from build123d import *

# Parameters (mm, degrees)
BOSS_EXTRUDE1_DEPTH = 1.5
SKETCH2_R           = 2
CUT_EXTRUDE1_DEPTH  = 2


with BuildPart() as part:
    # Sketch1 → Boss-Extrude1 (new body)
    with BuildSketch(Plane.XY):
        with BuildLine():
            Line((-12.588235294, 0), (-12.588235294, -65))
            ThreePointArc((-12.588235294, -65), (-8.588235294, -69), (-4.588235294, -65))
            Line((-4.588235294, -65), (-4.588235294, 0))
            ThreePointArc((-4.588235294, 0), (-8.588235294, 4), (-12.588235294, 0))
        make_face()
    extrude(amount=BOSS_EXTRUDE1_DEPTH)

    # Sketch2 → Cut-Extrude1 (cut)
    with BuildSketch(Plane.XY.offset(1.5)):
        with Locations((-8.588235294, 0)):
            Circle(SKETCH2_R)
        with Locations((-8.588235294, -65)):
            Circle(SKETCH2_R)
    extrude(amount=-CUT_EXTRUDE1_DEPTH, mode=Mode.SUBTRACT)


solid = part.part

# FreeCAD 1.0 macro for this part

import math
import FreeCAD as App
import Part
import Sketcher
from FreeCAD import Vector
Q = App.Units.Quantity

doc = App.newDocument("Part")
params = doc.addObject("Spreadsheet::Sheet", "Params")
for row, (alias, value) in enumerate([
    ("sketch1_radius", "4 mm"),
    ("sketch1_height", "65 mm"),
    ("pad1_length", "1.5 mm"),
    ("sketch2_diameter", "4 mm"),
    ("pocket1_length", "2 mm"),
], start=1):
    params.set(f"A{row}", alias)
    params.set(f"B{row}", "=" + value)
    params.setAlias(f"B{row}", alias)

body = doc.addObject("PartDesign::Body", "Body")

# Sketch on XY plane
sketch1 = body.newObject("Sketcher::SketchObject", "Sketch")
sketch1.AttachmentSupport = (doc.getObject("XY_Plane"), [""])
sketch1.MapMode = "FlatFace"
sketch1.addGeometry(Part.LineSegment(Vector(-12.6, 0, 0), Vector(-12.6, -65, 0)), False)
sketch1.addGeometry(Part.ArcOfCircle(Part.Circle(Vector(-8.6, -65, 0), Vector(0, 0, 1), 4), math.radians(180), math.radians(360)), False)
sketch1.addGeometry(Part.LineSegment(Vector(-4.6, -65, 0), Vector(-4.6, 0, 0)), False)
sketch1.addGeometry(Part.ArcOfCircle(Part.Circle(Vector(-8.6, 0, 0), Vector(0, 0, 1), 4), math.radians(0), math.radians(180)), False)
sketch1.addConstraint(Sketcher.Constraint("Tangent", 0, 2, 1, 1))
sketch1.addConstraint(Sketcher.Constraint("Tangent", 1, 2, 2, 1))
sketch1.addConstraint(Sketcher.Constraint("Tangent", 2, 2, 3, 1))
sketch1.addConstraint(Sketcher.Constraint("Tangent", 3, 2, 0, 1))
sketch1.addConstraint(Sketcher.Constraint("Vertical", 0))
sketch1.addConstraint(Sketcher.Constraint("Vertical", 2))
sketch1.addConstraint(Sketcher.Constraint("PointOnObject", 3, 3, -1))
sketch1.addConstraint(Sketcher.Constraint("Radius", 1, Q("4 mm")))
sketch1.addConstraint(Sketcher.Constraint("DistanceY", 0, 2, 0, 1, Q("65 mm")))
sketch1.addConstraint(Sketcher.Constraint("DistanceX", 1, 3, -1, 1, Q("8.588235 mm")))
sketch1.setExpression("Constraints[7]", "Params.sketch1_radius")
sketch1.setExpression("Constraints[8]", "Params.sketch1_height")
pad1 = body.newObject("PartDesign::Pad", "Pad")
pad1.Profile = sketch1
pad1.setExpression("Length", "Params.pad1_length")

# Sketch on XY plane
sketch2 = body.newObject("Sketcher::SketchObject", "Sketch001")
sketch2.AttachmentSupport = (doc.getObject("XY_Plane"), [""])
sketch2.MapMode = "FlatFace"
sketch2.AttachmentOffset = App.Placement(Vector(0, 0, 1.5), App.Rotation())
sketch2.addGeometry(Part.Circle(Vector(-8.6, 0, 0), Vector(0, 0, 1), 2), False)
sketch2.addGeometry(Part.Circle(Vector(-8.6, -65, 0), Vector(0, 0, 1), 2), False)
sketch2.addConstraint(Sketcher.Constraint("Equal", 0, 1))
sketch2.addConstraint(Sketcher.Constraint("PointOnObject", 0, 3, -1))
sketch2.addConstraint(Sketcher.Constraint("Vertical", 0, 3, 1, 3))
sketch2.addConstraint(Sketcher.Constraint("Diameter", 0, Q("4 mm")))
sketch2.addConstraint(Sketcher.Constraint("DistanceY", 1, 3, -1, 1, Q("65 mm")))
sketch2.addConstraint(Sketcher.Constraint("DistanceX", 0, 3, -1, 1, Q("8.588235 mm")))
sketch2.setExpression("Constraints[3]", "Params.sketch2_diameter")
pocket1 = body.newObject("PartDesign::Pocket", "Pocket")
pocket1.Profile = sketch2
pocket1.setExpression("Length", "Params.pocket1_length")

doc.recompute()
